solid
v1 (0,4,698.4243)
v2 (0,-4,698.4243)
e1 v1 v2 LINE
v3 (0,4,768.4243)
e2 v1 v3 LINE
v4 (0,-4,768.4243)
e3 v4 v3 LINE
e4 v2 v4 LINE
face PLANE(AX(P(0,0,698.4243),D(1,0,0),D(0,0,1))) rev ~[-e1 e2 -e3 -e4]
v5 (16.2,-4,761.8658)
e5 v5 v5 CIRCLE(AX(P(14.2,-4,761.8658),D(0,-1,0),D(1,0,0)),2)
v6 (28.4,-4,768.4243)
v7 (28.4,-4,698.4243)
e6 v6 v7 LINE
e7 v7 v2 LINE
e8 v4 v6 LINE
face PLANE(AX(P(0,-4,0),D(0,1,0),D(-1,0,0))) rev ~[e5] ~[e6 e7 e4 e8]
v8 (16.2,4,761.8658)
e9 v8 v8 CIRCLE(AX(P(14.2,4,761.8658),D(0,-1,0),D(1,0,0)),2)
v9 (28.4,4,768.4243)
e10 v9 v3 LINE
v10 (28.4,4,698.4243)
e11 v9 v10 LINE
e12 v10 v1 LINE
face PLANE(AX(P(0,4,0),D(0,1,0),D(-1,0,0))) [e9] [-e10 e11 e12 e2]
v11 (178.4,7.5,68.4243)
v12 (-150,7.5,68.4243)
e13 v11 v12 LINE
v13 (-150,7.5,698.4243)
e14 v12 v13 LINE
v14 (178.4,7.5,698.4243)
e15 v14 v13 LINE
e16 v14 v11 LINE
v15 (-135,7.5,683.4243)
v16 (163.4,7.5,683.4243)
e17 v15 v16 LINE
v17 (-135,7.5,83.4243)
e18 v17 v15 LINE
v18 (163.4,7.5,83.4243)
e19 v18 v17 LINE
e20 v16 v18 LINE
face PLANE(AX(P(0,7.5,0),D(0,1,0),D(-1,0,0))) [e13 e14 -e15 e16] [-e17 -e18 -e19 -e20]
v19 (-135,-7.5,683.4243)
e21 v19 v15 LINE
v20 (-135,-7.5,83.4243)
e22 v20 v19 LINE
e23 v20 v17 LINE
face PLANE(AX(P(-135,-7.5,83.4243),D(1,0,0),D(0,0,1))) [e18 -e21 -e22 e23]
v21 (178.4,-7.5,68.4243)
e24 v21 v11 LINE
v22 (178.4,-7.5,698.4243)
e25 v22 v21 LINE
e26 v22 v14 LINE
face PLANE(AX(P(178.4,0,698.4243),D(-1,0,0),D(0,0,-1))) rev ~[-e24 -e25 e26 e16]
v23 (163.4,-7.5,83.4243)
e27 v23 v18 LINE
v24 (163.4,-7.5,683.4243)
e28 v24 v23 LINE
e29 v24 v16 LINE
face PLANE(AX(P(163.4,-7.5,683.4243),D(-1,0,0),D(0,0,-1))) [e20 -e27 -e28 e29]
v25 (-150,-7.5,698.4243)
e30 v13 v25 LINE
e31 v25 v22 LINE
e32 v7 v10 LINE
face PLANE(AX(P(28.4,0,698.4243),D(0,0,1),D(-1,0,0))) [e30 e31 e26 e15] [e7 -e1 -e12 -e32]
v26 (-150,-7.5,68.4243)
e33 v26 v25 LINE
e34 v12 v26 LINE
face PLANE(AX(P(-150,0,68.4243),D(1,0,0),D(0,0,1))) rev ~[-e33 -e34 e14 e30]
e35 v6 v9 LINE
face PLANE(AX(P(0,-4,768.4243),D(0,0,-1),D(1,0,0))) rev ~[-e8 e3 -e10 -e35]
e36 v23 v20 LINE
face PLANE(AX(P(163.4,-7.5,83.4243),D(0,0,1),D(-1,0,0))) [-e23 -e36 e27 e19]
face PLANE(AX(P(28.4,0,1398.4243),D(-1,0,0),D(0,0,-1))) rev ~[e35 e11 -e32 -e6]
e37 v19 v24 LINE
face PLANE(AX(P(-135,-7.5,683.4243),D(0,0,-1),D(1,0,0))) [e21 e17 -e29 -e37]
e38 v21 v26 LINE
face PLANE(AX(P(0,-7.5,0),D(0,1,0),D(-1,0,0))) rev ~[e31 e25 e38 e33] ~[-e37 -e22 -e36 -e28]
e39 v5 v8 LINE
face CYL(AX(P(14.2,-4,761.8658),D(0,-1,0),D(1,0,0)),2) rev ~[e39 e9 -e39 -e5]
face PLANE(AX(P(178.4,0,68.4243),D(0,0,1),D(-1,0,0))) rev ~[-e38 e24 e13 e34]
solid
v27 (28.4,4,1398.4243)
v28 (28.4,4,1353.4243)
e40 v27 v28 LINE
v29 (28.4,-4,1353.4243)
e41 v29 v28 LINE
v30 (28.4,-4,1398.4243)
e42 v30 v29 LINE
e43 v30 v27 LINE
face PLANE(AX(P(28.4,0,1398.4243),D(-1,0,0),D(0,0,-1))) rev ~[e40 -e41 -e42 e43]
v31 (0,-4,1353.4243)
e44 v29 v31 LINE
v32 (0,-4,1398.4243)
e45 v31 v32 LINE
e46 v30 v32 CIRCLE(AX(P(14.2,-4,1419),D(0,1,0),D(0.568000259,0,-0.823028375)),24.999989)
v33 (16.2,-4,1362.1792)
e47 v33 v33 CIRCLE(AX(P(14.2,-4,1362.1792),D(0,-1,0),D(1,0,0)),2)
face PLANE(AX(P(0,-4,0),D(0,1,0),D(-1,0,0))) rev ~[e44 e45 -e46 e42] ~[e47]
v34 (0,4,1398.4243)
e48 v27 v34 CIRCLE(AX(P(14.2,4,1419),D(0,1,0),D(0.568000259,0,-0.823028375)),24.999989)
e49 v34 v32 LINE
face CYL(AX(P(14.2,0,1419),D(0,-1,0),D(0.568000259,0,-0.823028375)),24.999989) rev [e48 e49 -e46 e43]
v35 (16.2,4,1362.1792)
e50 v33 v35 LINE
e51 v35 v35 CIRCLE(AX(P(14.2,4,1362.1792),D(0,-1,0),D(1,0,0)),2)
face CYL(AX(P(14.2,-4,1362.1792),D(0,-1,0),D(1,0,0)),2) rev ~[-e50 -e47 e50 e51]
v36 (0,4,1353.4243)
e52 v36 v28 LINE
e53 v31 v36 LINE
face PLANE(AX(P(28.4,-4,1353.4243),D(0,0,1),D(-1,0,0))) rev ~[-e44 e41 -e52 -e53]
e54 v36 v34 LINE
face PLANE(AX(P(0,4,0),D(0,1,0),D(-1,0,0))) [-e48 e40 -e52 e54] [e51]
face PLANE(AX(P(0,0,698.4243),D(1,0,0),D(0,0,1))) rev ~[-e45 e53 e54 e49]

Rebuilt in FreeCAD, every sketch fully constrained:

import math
import FreeCAD as App
import Part
import Sketcher
Q = App.Units.Quantity


def add_polygon(sketch, points):
    """Adds a closed chain of lines whose ends are joined by coincident constraints."""
    first, n = sketch.GeometryCount, len(points)
    for a, b in zip(points, points[1:] + points[:1]):
        sketch.addGeometry(Part.LineSegment(App.Vector(*a, 0), App.Vector(*b, 0)), False)
    for i in range(n):
        sketch.addConstraint(Sketcher.Constraint("Coincident", first + i, 2, first + (i + 1) % n, 1))

doc = App.newDocument("Part")
body = doc.addObject("PartDesign::Body", "Body")
body.AllowCompound = True

sketch1 = body.newObject("Sketcher::SketchObject", "Sketch")
sketch1.AttachmentSupport = (doc.getObject("XZ_Plane"), [""])
sketch1.MapMode = "FlatFace"
add_polygon(sketch1, [(-150, 698.4243), (178.4, 698.4243), (178.4, 68.4243), (-150, 68.4243)])
sketch1.addConstraint([
    Sketcher.Constraint("Horizontal", 0),
    Sketcher.Constraint("Vertical", 1),
    Sketcher.Constraint("Horizontal", 2),
    Sketcher.Constraint("Vertical", 3),
    Sketcher.Constraint("DistanceY", 1, 2, 1, 1, Q("630 mm")),
    Sketcher.Constraint("DistanceX", 2, 2, -1, 1, Q("150 mm")),
    Sketcher.Constraint("DistanceX", 0, 1, 0, 2, Q("328.4 mm")),
    Sketcher.Constraint("DistanceY", -1, 1, 0, 2, Q("698.4243 mm")),
])
pad1 = body.newObject("PartDesign::Pad", "Pad")
pad1.Profile = sketch1
pad1.Length = 15
pad1.Midplane = True

sketch2 = body.newObject("Sketcher::SketchObject", "Sketch001")
sketch2.AttachmentSupport = (doc.getObject("XZ_Plane"), [""])
sketch2.MapMode = "FlatFace"
sketch2.addGeometry([
    Part.ArcOfCircle(Part.Circle(App.Vector(14.2, 1419, 0), App.Vector(0, 0, 1), 24.999989), math.radians(-124.610895), math.radians(-55.389105)),
    Part.LineSegment(App.Vector(28.4, 1398.4243, 0), App.Vector(28.4, 698.4243, 0)),
    Part.LineSegment(App.Vector(28.4, 698.4243, 0), App.Vector(0, 698.4243, 0)),
    Part.LineSegment(App.Vector(0, 698.4243, 0), App.Vector(0, 1398.4243, 0)),
], False)
sketch2.addConstraint([
    Sketcher.Constraint("Coincident", 0, 2, 1, 1),
    Sketcher.Constraint("Coincident", 1, 2, 2, 1),
    Sketcher.Constraint("Coincident", 2, 2, 3, 1),
    Sketcher.Constraint("Coincident", 3, 2, 0, 1),
    Sketcher.Constraint("Vertical", 1),
    Sketcher.Constraint("Horizontal", 2),
    Sketcher.Constraint("Vertical", 3),
    Sketcher.Constraint("PointOnObject", 2, 2, -2),
    Sketcher.Constraint("Horizontal", 0, 2, 3, 2),
    Sketcher.Constraint("DistanceY", 1, 2, 1, 1, Q("700 mm")),
    Sketcher.Constraint("DistanceX", 2, 2, 2, 1, Q("28.4 mm")),
    Sketcher.Constraint("Radius", 0, Q("25 mm")),
    Sketcher.Constraint("DistanceY", -1, 1, 0, 3, Q("1419 mm")),
])
pad2 = body.newObject("PartDesign::Pad", "Pad001")
pad2.Profile = sketch2
pad2.Length = 8
pad2.Midplane = True

sketch3 = body.newObject("Sketcher::SketchObject", "Sketch002")
sketch3.AttachmentSupport = (doc.getObject("XZ_Plane"), [""])
sketch3.MapMode = "FlatFace"
sketch3.AttachmentOffset = App.Placement(App.Vector(0, 0, 7.5), App.Rotation())
add_polygon(sketch3, [(163.4, 683.4243), (-135, 683.4243), (-135, 83.4243), (163.4, 83.4243)])
sketch3.addConstraint([
    Sketcher.Constraint("Horizontal", 0),
    Sketcher.Constraint("Vertical", 1),
    Sketcher.Constraint("Horizontal", 2),
    Sketcher.Constraint("Vertical", 3),
    Sketcher.Constraint("DistanceY", 1, 2, 1, 1, Q("600 mm")),
    Sketcher.Constraint("DistanceX", 0, 2, 0, 1, Q("298.4 mm")),
    Sketcher.Constraint("DistanceX", 0, 2, -1, 1, Q("135 mm")),
    Sketcher.Constraint("DistanceY", -1, 1, 0, 2, Q("683.4243 mm")),
])
pocket1 = body.newObject("PartDesign::Pocket", "Pocket")
pocket1.Profile = sketch3
pocket1.Length = 15

sketch4 = body.newObject("Sketcher::SketchObject", "Sketch003")
sketch4.AttachmentSupport = (doc.getObject("XZ_Plane"), [""])
sketch4.MapMode = "FlatFace"
sketch4.AttachmentOffset = App.Placement(App.Vector(0, 0, 4), App.Rotation())
add_polygon(sketch4, [(0, 1353.4243), (0, 768.4243), (28.4, 768.4243), (28.4, 1353.4243)])
sketch4.addGeometry(Part.Circle(App.Vector(14.2, 1362.1792, 0), App.Vector(0, 0, 1), 2), False)
sketch4.addGeometry(Part.Circle(App.Vector(14.2, 761.8658, 0), App.Vector(0, 0, 1), 2), False)
sketch4.addConstraint([
    Sketcher.Constraint("Vertical", 0),
    Sketcher.Constraint("Horizontal", 1),
    Sketcher.Constraint("Vertical", 2),
    Sketcher.Constraint("Horizontal", 3),
    Sketcher.Constraint("Equal", 4, 5),
    Sketcher.Constraint("PointOnObject", 0, 2, -2),
    Sketcher.Constraint("Vertical", 4, 3, 5, 3),
    Sketcher.Constraint("Diameter", 4, Q("4 mm")),
    Sketcher.Constraint("DistanceY", 0, 2, 0, 1, Q("585 mm")),
    Sketcher.Constraint("DistanceX", 1, 1, 1, 2, Q("28.4 mm")),
    Sketcher.Constraint("DistanceX", -1, 1, 4, 3, Q("14.2 mm")),
    Sketcher.Constraint("DistanceY", 0, 2, 4, 3, Q("593.755 mm")),
    Sketcher.Constraint("DistanceY", -1, 1, 4, 3, Q("1362.1792 mm")),
    Sketcher.Constraint("DistanceY", -1, 1, 5, 3, Q("761.8658 mm")),
])
pocket2 = body.newObject("PartDesign::Pocket", "Pocket001")
pocket2.Profile = sketch4
pocket2.Length = 15

doc.recompute()
